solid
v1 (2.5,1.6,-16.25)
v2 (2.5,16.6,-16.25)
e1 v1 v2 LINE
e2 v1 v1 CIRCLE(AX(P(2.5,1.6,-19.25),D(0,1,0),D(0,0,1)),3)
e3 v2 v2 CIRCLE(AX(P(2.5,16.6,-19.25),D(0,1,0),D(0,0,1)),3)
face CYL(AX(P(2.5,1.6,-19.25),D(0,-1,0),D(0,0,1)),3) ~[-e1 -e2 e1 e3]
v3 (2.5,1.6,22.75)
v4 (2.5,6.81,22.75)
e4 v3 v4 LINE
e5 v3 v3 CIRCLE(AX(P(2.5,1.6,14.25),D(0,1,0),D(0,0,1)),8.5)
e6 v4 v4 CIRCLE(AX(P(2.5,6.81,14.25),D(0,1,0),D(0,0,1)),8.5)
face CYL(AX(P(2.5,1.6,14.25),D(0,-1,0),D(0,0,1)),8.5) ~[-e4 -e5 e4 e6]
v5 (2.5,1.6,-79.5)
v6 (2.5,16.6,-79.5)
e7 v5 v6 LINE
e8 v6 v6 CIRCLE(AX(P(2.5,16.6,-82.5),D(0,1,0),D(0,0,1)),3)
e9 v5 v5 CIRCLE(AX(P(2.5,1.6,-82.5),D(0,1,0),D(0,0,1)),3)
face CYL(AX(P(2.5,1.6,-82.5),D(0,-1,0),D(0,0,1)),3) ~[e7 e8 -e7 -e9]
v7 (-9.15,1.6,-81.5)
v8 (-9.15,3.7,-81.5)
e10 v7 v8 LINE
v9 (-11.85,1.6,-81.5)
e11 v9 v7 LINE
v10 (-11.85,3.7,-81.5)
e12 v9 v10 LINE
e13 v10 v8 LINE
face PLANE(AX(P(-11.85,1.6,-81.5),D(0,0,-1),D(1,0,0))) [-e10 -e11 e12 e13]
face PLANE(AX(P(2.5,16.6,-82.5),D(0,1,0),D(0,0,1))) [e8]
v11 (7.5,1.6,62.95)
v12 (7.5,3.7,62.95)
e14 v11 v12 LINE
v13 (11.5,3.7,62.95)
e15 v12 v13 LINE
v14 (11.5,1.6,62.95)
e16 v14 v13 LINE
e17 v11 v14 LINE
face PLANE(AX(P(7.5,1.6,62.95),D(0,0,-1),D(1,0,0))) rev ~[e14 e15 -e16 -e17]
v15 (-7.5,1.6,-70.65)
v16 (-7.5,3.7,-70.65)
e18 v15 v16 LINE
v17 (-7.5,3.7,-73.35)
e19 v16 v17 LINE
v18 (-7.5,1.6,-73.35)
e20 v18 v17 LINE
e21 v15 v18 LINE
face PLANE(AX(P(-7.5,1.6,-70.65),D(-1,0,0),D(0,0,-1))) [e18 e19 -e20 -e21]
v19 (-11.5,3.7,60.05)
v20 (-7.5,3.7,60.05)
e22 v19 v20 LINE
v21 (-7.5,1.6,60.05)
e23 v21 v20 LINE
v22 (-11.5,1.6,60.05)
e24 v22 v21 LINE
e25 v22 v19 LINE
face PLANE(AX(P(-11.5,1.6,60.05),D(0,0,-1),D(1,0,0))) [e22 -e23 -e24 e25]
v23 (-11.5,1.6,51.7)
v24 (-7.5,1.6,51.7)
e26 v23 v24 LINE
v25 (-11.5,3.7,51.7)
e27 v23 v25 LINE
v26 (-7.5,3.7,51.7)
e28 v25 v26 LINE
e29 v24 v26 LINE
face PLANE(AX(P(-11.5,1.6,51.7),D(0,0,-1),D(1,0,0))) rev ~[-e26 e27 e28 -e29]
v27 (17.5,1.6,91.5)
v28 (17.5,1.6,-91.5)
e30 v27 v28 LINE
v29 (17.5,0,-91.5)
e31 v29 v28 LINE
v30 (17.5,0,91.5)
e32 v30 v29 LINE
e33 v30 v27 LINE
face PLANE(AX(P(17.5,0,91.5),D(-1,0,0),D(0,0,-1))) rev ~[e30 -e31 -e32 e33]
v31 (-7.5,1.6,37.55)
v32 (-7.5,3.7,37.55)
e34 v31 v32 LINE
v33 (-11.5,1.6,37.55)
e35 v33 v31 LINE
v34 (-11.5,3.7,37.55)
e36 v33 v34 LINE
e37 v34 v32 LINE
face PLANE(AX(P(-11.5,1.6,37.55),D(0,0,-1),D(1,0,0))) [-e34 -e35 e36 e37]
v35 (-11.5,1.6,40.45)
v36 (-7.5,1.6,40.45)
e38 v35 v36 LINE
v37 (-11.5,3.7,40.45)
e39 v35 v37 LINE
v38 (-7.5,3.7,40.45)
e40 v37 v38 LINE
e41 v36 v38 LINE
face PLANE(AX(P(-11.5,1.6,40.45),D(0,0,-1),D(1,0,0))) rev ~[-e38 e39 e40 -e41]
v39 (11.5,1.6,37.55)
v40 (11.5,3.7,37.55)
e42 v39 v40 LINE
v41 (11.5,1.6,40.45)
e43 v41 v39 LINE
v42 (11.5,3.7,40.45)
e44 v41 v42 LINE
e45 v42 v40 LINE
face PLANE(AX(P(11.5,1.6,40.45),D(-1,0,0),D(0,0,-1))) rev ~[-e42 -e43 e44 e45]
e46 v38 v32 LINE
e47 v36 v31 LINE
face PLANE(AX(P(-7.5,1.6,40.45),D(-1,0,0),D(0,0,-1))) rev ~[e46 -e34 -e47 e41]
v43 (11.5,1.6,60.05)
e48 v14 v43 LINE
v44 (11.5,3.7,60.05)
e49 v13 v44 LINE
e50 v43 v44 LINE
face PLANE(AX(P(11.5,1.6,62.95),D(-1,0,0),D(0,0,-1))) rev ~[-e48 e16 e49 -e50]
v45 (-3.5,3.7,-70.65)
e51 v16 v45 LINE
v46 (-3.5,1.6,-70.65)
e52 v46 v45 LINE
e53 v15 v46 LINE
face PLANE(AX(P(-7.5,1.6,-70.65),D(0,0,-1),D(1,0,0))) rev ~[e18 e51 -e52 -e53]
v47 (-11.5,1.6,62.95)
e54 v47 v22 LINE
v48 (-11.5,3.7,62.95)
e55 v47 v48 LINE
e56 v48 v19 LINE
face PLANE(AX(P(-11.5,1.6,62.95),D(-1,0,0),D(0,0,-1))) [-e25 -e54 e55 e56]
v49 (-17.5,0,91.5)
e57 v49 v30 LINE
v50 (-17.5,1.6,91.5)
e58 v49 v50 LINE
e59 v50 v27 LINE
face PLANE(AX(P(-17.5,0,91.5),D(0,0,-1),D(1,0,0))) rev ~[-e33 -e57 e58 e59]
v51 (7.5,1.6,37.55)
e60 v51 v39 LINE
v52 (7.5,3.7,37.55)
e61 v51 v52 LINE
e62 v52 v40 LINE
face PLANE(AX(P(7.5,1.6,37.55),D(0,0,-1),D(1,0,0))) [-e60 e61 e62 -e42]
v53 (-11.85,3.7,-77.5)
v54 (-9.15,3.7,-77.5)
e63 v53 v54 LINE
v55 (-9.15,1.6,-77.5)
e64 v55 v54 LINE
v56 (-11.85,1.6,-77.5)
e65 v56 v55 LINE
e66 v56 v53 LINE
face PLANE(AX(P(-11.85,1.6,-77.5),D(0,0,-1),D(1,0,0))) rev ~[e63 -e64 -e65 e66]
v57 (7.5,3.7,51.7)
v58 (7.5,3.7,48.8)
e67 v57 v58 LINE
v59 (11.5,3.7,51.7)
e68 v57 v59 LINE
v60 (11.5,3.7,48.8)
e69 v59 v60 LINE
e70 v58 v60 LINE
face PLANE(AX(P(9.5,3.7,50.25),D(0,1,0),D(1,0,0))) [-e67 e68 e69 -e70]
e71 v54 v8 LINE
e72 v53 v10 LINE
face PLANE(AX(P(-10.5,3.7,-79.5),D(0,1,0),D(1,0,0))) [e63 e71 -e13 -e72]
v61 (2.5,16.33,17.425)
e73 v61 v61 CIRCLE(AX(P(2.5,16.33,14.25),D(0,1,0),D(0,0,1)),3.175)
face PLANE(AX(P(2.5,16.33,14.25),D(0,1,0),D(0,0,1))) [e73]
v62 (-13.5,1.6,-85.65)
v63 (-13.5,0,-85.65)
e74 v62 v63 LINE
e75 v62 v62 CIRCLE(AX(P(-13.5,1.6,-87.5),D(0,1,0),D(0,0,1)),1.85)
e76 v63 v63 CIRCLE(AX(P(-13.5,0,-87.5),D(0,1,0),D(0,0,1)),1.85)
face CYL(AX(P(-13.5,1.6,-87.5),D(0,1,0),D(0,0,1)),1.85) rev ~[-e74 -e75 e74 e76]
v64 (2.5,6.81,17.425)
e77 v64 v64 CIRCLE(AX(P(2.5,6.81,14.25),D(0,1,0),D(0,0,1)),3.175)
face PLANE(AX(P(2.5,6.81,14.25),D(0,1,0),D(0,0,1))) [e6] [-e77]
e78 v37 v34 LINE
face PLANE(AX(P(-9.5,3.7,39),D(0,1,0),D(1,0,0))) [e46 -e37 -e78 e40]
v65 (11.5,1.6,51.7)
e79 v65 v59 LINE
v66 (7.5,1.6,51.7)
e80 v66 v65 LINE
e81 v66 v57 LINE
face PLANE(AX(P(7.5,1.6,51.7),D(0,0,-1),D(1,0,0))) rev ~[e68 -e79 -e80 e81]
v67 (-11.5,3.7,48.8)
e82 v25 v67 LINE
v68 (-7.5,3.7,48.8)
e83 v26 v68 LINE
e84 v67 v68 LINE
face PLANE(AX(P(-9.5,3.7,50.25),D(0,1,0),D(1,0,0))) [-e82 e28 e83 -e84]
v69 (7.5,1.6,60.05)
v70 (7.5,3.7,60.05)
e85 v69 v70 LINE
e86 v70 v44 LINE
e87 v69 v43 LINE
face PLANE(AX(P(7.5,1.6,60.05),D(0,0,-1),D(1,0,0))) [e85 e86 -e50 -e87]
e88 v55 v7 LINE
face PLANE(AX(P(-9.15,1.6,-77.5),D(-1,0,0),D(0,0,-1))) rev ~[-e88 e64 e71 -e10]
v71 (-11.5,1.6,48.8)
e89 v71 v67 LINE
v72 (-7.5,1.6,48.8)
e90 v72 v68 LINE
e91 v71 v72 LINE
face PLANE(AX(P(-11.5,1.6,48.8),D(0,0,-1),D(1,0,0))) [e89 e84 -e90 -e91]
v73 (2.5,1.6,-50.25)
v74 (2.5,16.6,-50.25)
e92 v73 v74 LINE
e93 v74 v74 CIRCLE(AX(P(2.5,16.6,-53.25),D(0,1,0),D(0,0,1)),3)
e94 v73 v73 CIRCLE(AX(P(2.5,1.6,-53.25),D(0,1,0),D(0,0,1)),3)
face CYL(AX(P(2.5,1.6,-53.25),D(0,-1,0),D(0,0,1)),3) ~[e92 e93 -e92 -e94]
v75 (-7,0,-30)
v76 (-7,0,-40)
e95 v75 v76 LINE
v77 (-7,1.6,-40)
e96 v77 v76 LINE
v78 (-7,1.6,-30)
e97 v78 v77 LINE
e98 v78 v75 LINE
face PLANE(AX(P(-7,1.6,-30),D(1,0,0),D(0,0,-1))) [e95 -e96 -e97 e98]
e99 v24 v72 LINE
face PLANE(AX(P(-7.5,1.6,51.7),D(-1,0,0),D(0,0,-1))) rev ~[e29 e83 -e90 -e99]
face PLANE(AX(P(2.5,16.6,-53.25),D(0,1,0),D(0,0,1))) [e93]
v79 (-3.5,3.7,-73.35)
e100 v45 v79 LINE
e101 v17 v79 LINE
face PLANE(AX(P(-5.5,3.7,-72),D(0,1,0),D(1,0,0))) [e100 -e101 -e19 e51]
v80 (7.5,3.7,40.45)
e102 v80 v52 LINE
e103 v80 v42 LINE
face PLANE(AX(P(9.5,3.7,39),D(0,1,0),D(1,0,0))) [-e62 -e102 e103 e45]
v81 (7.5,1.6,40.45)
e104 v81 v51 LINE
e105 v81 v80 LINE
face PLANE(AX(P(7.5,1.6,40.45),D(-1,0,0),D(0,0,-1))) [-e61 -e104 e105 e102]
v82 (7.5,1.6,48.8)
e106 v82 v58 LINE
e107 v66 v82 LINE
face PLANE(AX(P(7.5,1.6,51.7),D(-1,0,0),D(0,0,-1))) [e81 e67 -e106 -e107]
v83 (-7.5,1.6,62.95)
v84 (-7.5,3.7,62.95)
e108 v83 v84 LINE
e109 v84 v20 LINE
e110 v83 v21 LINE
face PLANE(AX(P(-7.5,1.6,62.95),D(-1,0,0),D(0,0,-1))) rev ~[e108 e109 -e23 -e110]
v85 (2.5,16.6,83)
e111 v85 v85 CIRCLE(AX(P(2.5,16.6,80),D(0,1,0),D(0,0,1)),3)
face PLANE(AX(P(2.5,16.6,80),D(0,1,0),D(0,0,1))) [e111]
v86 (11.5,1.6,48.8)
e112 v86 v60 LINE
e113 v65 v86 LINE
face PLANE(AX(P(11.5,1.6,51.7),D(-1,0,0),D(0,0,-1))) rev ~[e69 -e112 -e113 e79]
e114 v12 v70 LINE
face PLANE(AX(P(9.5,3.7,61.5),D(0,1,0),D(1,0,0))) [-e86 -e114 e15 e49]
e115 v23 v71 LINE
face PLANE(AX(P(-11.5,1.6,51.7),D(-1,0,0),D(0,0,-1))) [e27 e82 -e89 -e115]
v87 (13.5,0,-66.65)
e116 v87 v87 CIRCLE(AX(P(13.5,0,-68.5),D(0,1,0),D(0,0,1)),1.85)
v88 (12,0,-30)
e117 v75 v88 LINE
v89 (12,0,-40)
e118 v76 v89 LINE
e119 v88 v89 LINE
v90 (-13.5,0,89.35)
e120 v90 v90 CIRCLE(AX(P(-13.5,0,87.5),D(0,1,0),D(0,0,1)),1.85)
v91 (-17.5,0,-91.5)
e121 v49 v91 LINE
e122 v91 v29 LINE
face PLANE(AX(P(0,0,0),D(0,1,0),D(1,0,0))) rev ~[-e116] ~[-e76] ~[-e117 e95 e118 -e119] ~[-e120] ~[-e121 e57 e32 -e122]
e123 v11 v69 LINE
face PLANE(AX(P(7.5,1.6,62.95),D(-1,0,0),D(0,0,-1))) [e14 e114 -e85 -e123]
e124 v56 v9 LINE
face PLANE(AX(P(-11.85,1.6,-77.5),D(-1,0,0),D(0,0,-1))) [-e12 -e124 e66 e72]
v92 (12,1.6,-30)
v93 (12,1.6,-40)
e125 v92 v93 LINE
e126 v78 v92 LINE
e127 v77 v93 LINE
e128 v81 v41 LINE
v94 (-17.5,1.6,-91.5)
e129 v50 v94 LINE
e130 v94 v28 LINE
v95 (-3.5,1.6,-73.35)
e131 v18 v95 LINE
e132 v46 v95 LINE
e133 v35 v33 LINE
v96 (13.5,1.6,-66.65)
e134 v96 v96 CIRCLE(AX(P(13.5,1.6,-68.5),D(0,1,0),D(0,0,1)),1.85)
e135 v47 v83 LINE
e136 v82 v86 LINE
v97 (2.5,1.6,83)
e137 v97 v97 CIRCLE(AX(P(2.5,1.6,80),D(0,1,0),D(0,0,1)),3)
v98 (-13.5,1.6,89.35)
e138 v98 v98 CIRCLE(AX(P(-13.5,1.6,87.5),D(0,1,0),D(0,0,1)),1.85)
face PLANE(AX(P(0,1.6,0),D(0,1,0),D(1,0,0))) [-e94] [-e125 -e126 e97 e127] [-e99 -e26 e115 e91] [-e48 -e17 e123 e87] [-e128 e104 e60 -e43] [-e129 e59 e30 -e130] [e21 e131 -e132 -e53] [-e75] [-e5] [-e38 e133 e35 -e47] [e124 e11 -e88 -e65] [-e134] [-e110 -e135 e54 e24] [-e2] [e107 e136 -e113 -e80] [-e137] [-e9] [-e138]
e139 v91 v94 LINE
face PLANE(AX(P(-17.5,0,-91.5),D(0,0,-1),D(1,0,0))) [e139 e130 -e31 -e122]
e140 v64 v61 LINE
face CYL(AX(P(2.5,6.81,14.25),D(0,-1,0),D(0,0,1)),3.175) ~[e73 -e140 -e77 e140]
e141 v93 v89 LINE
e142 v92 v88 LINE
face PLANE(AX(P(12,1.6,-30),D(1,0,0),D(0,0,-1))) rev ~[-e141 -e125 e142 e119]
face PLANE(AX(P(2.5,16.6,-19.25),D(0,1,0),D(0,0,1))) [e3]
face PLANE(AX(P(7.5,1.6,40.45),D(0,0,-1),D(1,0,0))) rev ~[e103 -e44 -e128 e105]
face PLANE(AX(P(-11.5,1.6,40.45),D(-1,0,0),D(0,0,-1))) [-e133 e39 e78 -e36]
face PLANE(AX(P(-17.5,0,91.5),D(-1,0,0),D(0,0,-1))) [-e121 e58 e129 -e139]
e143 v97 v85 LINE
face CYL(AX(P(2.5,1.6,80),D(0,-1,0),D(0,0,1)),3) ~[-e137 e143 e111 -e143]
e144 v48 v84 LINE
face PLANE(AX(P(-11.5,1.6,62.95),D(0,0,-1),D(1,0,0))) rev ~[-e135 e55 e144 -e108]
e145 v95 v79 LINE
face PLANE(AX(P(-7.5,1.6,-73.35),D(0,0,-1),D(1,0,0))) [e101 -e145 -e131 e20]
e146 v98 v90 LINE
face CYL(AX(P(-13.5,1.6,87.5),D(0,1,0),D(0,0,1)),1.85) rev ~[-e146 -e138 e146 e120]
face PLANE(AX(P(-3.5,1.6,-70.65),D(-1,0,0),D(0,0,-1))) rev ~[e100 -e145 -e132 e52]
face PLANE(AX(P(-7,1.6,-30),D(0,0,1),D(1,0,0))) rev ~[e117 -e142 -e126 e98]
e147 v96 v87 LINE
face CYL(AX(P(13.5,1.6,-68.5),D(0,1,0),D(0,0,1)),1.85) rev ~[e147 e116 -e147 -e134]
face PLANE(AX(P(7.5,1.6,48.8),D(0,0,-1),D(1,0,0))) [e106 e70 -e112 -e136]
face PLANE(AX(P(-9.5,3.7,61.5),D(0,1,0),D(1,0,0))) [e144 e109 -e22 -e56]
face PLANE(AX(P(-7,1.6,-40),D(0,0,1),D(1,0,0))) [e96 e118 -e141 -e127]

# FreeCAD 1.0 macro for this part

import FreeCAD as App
import Part
import Sketcher
from FreeCAD import Vector


def add_polygon(sketch, points):
    """Adds a closed chain of lines whose ends are joined by coincident constraints."""
    first, n = sketch.GeometryCount, len(points)
    for a, b in zip(points, points[1:] + points[:1]):
        sketch.addGeometry(Part.LineSegment(App.Vector(*a, 0), App.Vector(*b, 0)), False)
    for i in range(n):
        sketch.addConstraint(Sketcher.Constraint("Coincident", first + i, 2, first + (i + 1) % n, 1))

doc = App.newDocument("Part")
params = doc.addObject("Spreadsheet::Sheet", "Params")
for row, (alias, value) in enumerate([
    ("sketch1_width", "35 mm"),
    ("sketch1_height", "183 mm"),
    ("pad1_length", "1.6 mm"),
    ("sketch2_diameter", "6 mm"),
    ("pad2_length", "15 mm"),
    ("sketch3_diameter", "17 mm"),
    ("pad3_length", "5.21 mm"),
    ("sketch4_diameter", "6.35 mm"),
    ("pad4_length", "9.52 mm"),
    ("sketch5_width", "4 mm"),
    ("sketch5_height", "2.9 mm"),
    ("pad5_length", "2.1 mm"),
    ("sketch6_diameter", "3.7 mm"),
    ("sketch7_width", "4 mm"),
    ("sketch7_width2", "2.7 mm"),
    ("pad6_length", "2.1 mm"),
    ("sketch8_width", "19 mm"),
    ("sketch8_height", "10 mm"),
], start=1):
    params.set(f"A{row}", alias)
    params.set(f"B{row}", "=" + value)
    params.setAlias(f"B{row}", alias)

body = doc.addObject("PartDesign::Body", "Body")

# Sketch on XZ plane
sketch1 = doc.addObject("Sketcher::SketchObject", "Sketch")
body.addObject(sketch1)
sketch1.AttachmentSupport = (doc.XZ_Plane, [""])
sketch1.MapMode = "FlatFace"
add_polygon(sketch1, [(-18, -92), (-18, 92), (18, 92), (18, -92)])  # lines 0-3
sketch1.addConstraint([
    Sketcher.Constraint("Vertical", 0),
    Sketcher.Constraint("Horizontal", 1),
    Sketcher.Constraint("Vertical", 2),
    Sketcher.Constraint("Horizontal", 3),
    Sketcher.Constraint("Symmetric", 0, 2, 2, 2, -1, 1),
    Sketcher.Constraint("DistanceX", 1, 1, 1, 2, 35.0),
    Sketcher.Constraint("DistanceY", 0, 1, 0, 2, 183.0),
])
sketch1.setExpression("Constraints[9]", "Params.sketch1_width")
sketch1.setExpression("Constraints[10]", "Params.sketch1_height")
pad1 = doc.addObject("PartDesign::Pad", "Pad")
body.addObject(pad1)
pad1.Profile = sketch1
pad1.setExpression("Length", "Params.pad1_length")
pad1.Reversed = True

# Sketch on XZ plane
sketch2 = doc.addObject("Sketcher::SketchObject", "Sketch001")
body.addObject(sketch2)
sketch2.AttachmentSupport = (doc.XZ_Plane, [""])
sketch2.MapMode = "FlatFace"
sketch2.AttachmentOffset = App.Placement(Vector(0, 0, -1.6), App.Rotation())
sketch2.addGeometry([
    Part.Circle(Vector(2.5, -82.5, 0), Vector(0, 0, 1), 3),
    Part.Circle(Vector(2.5, -53.2, 0), Vector(0, 0, 1), 3),
    Part.Circle(Vector(2.5, -19.2, 0), Vector(0, 0, 1), 3),
    Part.Circle(Vector(2.5, 80, 0), Vector(0, 0, 1), 3),
], False)
sketch2.addConstraint([
    Sketcher.Constraint("Equal", 0, 1),
    Sketcher.Constraint("Equal", 1, 2),
    Sketcher.Constraint("Equal", 2, 3),
    Sketcher.Constraint("Vertical", 0, 3, 1, 3),
    Sketcher.Constraint("Vertical", 1, 3, 2, 3),
    Sketcher.Constraint("Vertical", 2, 3, 3, 3),
    Sketcher.Constraint("Diameter", 0, 6.0),
    Sketcher.Constraint("DistanceY", -1, 1, 3, 3, 80.0),
    Sketcher.Constraint("DistanceY", 1, 3, 2, 3, 34.0),
    Sketcher.Constraint("DistanceX", -1, 1, 0, 3, 2.5),
    Sketcher.Constraint("DistanceY", 0, 3, -1, 1, 82.5),
    Sketcher.Constraint("DistanceY", 1, 3, -1, 1, 53.25),
])
sketch2.setExpression("Constraints[6]", "Params.sketch2_diameter")
pad2 = doc.addObject("PartDesign::Pad", "Pad001")
body.addObject(pad2)
pad2.Profile = sketch2
pad2.setExpression("Length", "Params.pad2_length")
pad2.Reversed = True

# Sketch on XZ plane
sketch3 = doc.addObject("Sketcher::SketchObject", "Sketch002")
body.addObject(sketch3)
sketch3.AttachmentSupport = (doc.XZ_Plane, [""])
sketch3.MapMode = "FlatFace"
sketch3.AttachmentOffset = App.Placement(Vector(0, 0, -1.6), App.Rotation())
sketch3.addGeometry(Part.Circle(Vector(2, 14, 0), Vector(0, 0, 1), 8), False)
sketch3.addConstraint([
    Sketcher.Constraint("Diameter", 0, 17.0),
    Sketcher.Constraint("DistanceX", -1, 1, 0, 3, 2.5),
    Sketcher.Constraint("DistanceY", -1, 1, 0, 3, 14.25),
])
sketch3.setExpression("Constraints[0]", "Params.sketch3_diameter")
pad3 = doc.addObject("PartDesign::Pad", "Pad002")
body.addObject(pad3)
pad3.Profile = sketch3
pad3.setExpression("Length", "Params.pad3_length")
pad3.Reversed = True

# Sketch on XZ plane
sketch4 = doc.addObject("Sketcher::SketchObject", "Sketch003")
body.addObject(sketch4)
sketch4.AttachmentSupport = (doc.XZ_Plane, [""])
sketch4.MapMode = "FlatFace"
sketch4.AttachmentOffset = App.Placement(Vector(0, 0, -6.81), App.Rotation())
sketch4.addGeometry(Part.Circle(Vector(2.5, 14.2, 0), Vector(0, 0, 1), 3.2), False)
sketch4.addConstraint([
    Sketcher.Constraint("Diameter", 0, 6.35),
    Sketcher.Constraint("DistanceX", -1, 1, 0, 3, 2.5),
    Sketcher.Constraint("DistanceY", -1, 1, 0, 3, 14.25),
])
sketch4.setExpression("Constraints[0]", "Params.sketch4_diameter")
pad4 = doc.addObject("PartDesign::Pad", "Pad003")
body.addObject(pad4)
pad4.Profile = sketch4
pad4.setExpression("Length", "Params.pad4_length")
pad4.Reversed = True

# Sketch on XZ plane
sketch5 = doc.addObject("Sketcher::SketchObject", "Sketch004")
body.addObject(sketch5)
sketch5.AttachmentSupport = (doc.XZ_Plane, [""])
sketch5.MapMode = "FlatFace"
sketch5.AttachmentOffset = App.Placement(Vector(0, 0, -1.6), App.Rotation())
add_polygon(sketch5, [(-11.5, 37.5), (-11.5, 40.5), (-7.5, 40.5), (-7.5, 37.5)])  # lines 0-3
add_polygon(sketch5, [(7.5, 37.5), (7.5, 40.5), (11.5, 40.5), (11.5, 37.5)])  # lines 4-7
add_polygon(sketch5, [(-11.5, 48.8), (-11.5, 51.7), (-7.5, 51.7), (-7.5, 48.8)])  # lines 8-11
add_polygon(sketch5, [(7.5, 48.8), (7.5, 51.7), (11.5, 51.7), (11.5, 48.8)])  # lines 12-15
add_polygon(sketch5, [(-11.5, 60), (-11.5, 63), (-7.5, 63), (-7.5, 60)])  # lines 16-19
add_polygon(sketch5, [(7.5, 60), (7.5, 63), (11.5, 63), (11.5, 60)])  # lines 20-23
sketch5.addConstraint([
    Sketcher.Constraint("Vertical", 0),
    Sketcher.Constraint("Horizontal", 1),
    Sketcher.Constraint("Vertical", 2),
    Sketcher.Constraint("Horizontal", 3),
    Sketcher.Constraint("Vertical", 4),
    Sketcher.Constraint("Horizontal", 5),
    Sketcher.Constraint("Vertical", 6),
    Sketcher.Constraint("Horizontal", 7),
    Sketcher.Constraint("Vertical", 8),
    Sketcher.Constraint("Horizontal", 9),
    Sketcher.Constraint("Vertical", 10),
    Sketcher.Constraint("Horizontal", 11),
    Sketcher.Constraint("Vertical", 12),
    Sketcher.Constraint("Horizontal", 13),
    Sketcher.Constraint("Vertical", 14),
    Sketcher.Constraint("Horizontal", 15),
    Sketcher.Constraint("Vertical", 16),
    Sketcher.Constraint("Horizontal", 17),
    Sketcher.Constraint("Vertical", 18),
    Sketcher.Constraint("Horizontal", 19),
    Sketcher.Constraint("Vertical", 20),
    Sketcher.Constraint("Horizontal", 21),
    Sketcher.Constraint("Vertical", 22),
    Sketcher.Constraint("Horizontal", 23),
    Sketcher.Constraint("Symmetric", 1, 2, 4, 2, -2),
    Sketcher.Constraint("Symmetric", 3, 2, 6, 2, -2),
    Sketcher.Constraint("Symmetric", 9, 2, 12, 2, -2),
    Sketcher.Constraint("Symmetric", 11, 2, 14, 2, -2),
    Sketcher.Constraint("Symmetric", 17, 2, 20, 2, -2),
    Sketcher.Constraint("Symmetric", 19, 2, 22, 2, -2),
    Sketcher.Constraint("Vertical", 3, 2, 8, 2),
    Sketcher.Constraint("Vertical", 2, 2, 9, 2),
    Sketcher.Constraint("Vertical", 11, 2, 16, 2),
    Sketcher.Constraint("Vertical", 10, 2, 17, 2),
    Sketcher.Constraint("Equal", 6, 8),
    Sketcher.Constraint("Equal", 14, 16),
    Sketcher.Constraint("DistanceX", 1, 1, 1, 2, 4.0),
    Sketcher.Constraint("DistanceY", 0, 1, 0, 2, 2.9),
    Sketcher.Constraint("DistanceX", 1, 2, 4, 2, 15.0),
    Sketcher.Constraint("DistanceY", -1, 1, 8, 2, 51.7),
    Sketcher.Constraint("DistanceY", -1, 1, 0, 2, 40.45),
    Sketcher.Constraint("DistanceY", -1, 1, 16, 2, 62.95),
])
sketch5.setExpression("Constraints[60]", "Params.sketch5_width")
sketch5.setExpression("Constraints[61]", "Params.sketch5_height")
pad5 = doc.addObject("PartDesign::Pad", "Pad004")
body.addObject(pad5)
pad5.Profile = sketch5
pad5.setExpression("Length", "Params.pad5_length")
pad5.Reversed = True

# Sketch on XZ plane
sketch6 = doc.addObject("Sketcher::SketchObject", "Sketch005")
body.addObject(sketch6)
sketch6.AttachmentSupport = (doc.XZ_Plane, [""])
sketch6.MapMode = "FlatFace"
sketch6.AttachmentOffset = App.Placement(Vector(0, 0, -1.6), App.Rotation())
sketch6.addGeometry([
    Part.Circle(Vector(13.5, -68.5, 0), Vector(0, 0, 1), 1.9),
    Part.Circle(Vector(-13.5, -87.5, 0), Vector(0, 0, 1), 1.9),
    Part.Circle(Vector(-13.5, 87.5, 0), Vector(0, 0, 1), 1.9),
], False)
sketch6.addConstraint([
    Sketcher.Constraint("Equal", 0, 1),
    Sketcher.Constraint("Equal", 1, 2),
    Sketcher.Constraint("Symmetric", 1, 3, 2, 3, -1),
    Sketcher.Constraint("Diameter", 0, 3.7),
    Sketcher.Constraint("DistanceX", 1, 3, 0, 3, 27.0),
    Sketcher.Constraint("DistanceY", 1, 3, 0, 3, 19.0),
    Sketcher.Constraint("DistanceY", 0, 3, 2, 3, 156.0),
    Sketcher.Constraint("DistanceX", -1, 1, 0, 3, 13.5),
])
sketch6.setExpression("Constraints[3]", "Params.sketch6_diameter")
pocket1 = doc.addObject("PartDesign::Pocket", "Pocket")
body.addObject(pocket1)
pocket1.Profile = sketch6
pocket1.Type = "ThroughAll"
pocket1.Reversed = True

# Sketch on XZ plane
sketch7 = doc.addObject("Sketcher::SketchObject", "Sketch006")
body.addObject(sketch7)
sketch7.AttachmentSupport = (doc.XZ_Plane, [""])
sketch7.MapMode = "FlatFace"
sketch7.AttachmentOffset = App.Placement(Vector(0, 0, -1.6), App.Rotation())
add_polygon(sketch7, [(-7.5, -73.3), (-7.5, -70.7), (-3.5, -70.7), (-3.5, -73.3)])  # lines 0-3
add_polygon(sketch7, [(-11.8, -81.5), (-11.8, -77.5), (-9.2, -77.5), (-9.2, -81.5)])  # lines 4-7
sketch7.addConstraint([
    Sketcher.Constraint("Vertical", 0),
    Sketcher.Constraint("Horizontal", 1),
    Sketcher.Constraint("Vertical", 2),
    Sketcher.Constraint("Horizontal", 3),
    Sketcher.Constraint("Vertical", 4),
    Sketcher.Constraint("Horizontal", 5),
    Sketcher.Constraint("Vertical", 6),
    Sketcher.Constraint("Horizontal", 7),
    Sketcher.Constraint("Equal", 7, 0),
    Sketcher.Constraint("Equal", 3, 4),
    Sketcher.Constraint("DistanceX", 1, 1, 1, 2, 4.0),
    Sketcher.Constraint("DistanceX", 5, 1, 5, 2, 2.7),
    Sketcher.Constraint("DistanceX", 0, 2, -1, 1, 7.5),
    Sketcher.Constraint("DistanceY", 4, 2, -1, 1, 77.5),
    Sketcher.Constraint("DistanceY", 0, 2, -1, 1, 70.65),
    Sketcher.Constraint("DistanceX", 4, 2, -1, 1, 11.85),
])
sketch7.setExpression("Constraints[18]", "Params.sketch7_width")
sketch7.setExpression("Constraints[19]", "Params.sketch7_width2")
pad6 = doc.addObject("PartDesign::Pad", "Pad005")
body.addObject(pad6)
pad6.Profile = sketch7
pad6.setExpression("Length", "Params.pad6_length")
pad6.Reversed = True

# Sketch on XZ plane
sketch8 = doc.addObject("Sketcher::SketchObject", "Sketch007")
body.addObject(sketch8)
sketch8.AttachmentSupport = (doc.XZ_Plane, [""])
sketch8.MapMode = "FlatFace"
sketch8.AttachmentOffset = App.Placement(Vector(0, 0, -1.6), App.Rotation())
add_polygon(sketch8, [(-7, -40), (-7, -30), (12, -30), (12, -40)])  # lines 0-3
sketch8.addConstraint([
    Sketcher.Constraint("Vertical", 0),
    Sketcher.Constraint("Horizontal", 1),
    Sketcher.Constraint("Vertical", 2),
    Sketcher.Constraint("Horizontal", 3),
    Sketcher.Constraint("DistanceX", 1, 1, 1, 2, 19.0),
    Sketcher.Constraint("DistanceY", 0, 1, 0, 2, 10.0),
    Sketcher.Constraint("DistanceX", 0, 2, -1, 1, 7.0),
    Sketcher.Constraint("DistanceY", 0, 2, -1, 1, 30.0),
])
sketch8.setExpression("Constraints[8]", "Params.sketch8_width")
sketch8.setExpression("Constraints[9]", "Params.sketch8_height")
pocket2 = doc.addObject("PartDesign::Pocket", "Pocket001")
body.addObject(pocket2)
pocket2.Profile = sketch8
pocket2.Type = "ThroughAll"
pocket2.Reversed = True

doc.recompute()
